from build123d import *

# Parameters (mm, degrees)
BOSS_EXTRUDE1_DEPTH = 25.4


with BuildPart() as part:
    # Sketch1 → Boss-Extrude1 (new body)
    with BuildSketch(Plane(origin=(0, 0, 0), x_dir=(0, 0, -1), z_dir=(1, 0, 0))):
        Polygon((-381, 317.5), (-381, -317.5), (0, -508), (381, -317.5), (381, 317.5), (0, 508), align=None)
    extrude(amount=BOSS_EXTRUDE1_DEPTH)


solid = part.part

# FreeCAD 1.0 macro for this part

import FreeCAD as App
import Part
import Sketcher
Q = App.Units.Quantity

doc = App.newDocument("Part")
body = doc.addObject("PartDesign::Body", "Body")

sketch1 = body.newObject("Sketcher::SketchObject", "Sketch")
sketch1.AttachmentSupport = (doc.getObject("YZ_Plane"), [""])
sketch1.MapMode = "FlatFace"
sketch1.addGeometry([
    Part.LineSegment(App.Vector(318, 381, 0), App.Vector(-318, 381, 0)),
    Part.LineSegment(App.Vector(-318, 381, 0), App.Vector(-508, 0, 0)),
    Part.LineSegment(App.Vector(-508, 0, 0), App.Vector(-318, -381, 0)),
    Part.LineSegment(App.Vector(-318, -381, 0), App.Vector(318, -381, 0)),
    Part.LineSegment(App.Vector(318, -381, 0), App.Vector(508, 0, 0)),
    Part.LineSegment(App.Vector(508, 0, 0), App.Vector(318, 381, 0)),
], False)
sketch1.addConstraint([
    Sketcher.Constraint("Coincident", 0, 2, 1, 1),
    Sketcher.Constraint("Coincident", 1, 2, 2, 1),
    Sketcher.Constraint("Coincident", 2, 2, 3, 1),
    Sketcher.Constraint("Coincident", 3, 2, 4, 1),
    Sketcher.Constraint("Coincident", 4, 2, 5, 1),
    Sketcher.Constraint("Coincident", 5, 2, 0, 1),
    Sketcher.Constraint("Horizontal", 0),
    Sketcher.Constraint("Horizontal", 3),
    Sketcher.Constraint("Symmetric", 0, 2, 3, 2, -1, 1),
    Sketcher.Constraint("Symmetric", 1, 2, 4, 2, -1, 1),
    Sketcher.Constraint("PointOnObject", 1, 2, -1),
    Sketcher.Constraint("Parallel", 2, 5),
    Sketcher.Constraint("Vertical", 0, 2, 2, 2),
    Sketcher.Constraint("DistanceX", 0, 2, 0, 1, Q("25 in")),
    Sketcher.Constraint("DistanceY", -1, 1, 0, 2, Q("15 in")),
    Sketcher.Constraint("DistanceX", 1, 2, -1, 1, Q("20 in")),
])
pad1 = body.newObject("PartDesign::Pad", "Pad")
pad1.Profile = sketch1
pad1.Length = Q("1 in")

doc.recompute()
